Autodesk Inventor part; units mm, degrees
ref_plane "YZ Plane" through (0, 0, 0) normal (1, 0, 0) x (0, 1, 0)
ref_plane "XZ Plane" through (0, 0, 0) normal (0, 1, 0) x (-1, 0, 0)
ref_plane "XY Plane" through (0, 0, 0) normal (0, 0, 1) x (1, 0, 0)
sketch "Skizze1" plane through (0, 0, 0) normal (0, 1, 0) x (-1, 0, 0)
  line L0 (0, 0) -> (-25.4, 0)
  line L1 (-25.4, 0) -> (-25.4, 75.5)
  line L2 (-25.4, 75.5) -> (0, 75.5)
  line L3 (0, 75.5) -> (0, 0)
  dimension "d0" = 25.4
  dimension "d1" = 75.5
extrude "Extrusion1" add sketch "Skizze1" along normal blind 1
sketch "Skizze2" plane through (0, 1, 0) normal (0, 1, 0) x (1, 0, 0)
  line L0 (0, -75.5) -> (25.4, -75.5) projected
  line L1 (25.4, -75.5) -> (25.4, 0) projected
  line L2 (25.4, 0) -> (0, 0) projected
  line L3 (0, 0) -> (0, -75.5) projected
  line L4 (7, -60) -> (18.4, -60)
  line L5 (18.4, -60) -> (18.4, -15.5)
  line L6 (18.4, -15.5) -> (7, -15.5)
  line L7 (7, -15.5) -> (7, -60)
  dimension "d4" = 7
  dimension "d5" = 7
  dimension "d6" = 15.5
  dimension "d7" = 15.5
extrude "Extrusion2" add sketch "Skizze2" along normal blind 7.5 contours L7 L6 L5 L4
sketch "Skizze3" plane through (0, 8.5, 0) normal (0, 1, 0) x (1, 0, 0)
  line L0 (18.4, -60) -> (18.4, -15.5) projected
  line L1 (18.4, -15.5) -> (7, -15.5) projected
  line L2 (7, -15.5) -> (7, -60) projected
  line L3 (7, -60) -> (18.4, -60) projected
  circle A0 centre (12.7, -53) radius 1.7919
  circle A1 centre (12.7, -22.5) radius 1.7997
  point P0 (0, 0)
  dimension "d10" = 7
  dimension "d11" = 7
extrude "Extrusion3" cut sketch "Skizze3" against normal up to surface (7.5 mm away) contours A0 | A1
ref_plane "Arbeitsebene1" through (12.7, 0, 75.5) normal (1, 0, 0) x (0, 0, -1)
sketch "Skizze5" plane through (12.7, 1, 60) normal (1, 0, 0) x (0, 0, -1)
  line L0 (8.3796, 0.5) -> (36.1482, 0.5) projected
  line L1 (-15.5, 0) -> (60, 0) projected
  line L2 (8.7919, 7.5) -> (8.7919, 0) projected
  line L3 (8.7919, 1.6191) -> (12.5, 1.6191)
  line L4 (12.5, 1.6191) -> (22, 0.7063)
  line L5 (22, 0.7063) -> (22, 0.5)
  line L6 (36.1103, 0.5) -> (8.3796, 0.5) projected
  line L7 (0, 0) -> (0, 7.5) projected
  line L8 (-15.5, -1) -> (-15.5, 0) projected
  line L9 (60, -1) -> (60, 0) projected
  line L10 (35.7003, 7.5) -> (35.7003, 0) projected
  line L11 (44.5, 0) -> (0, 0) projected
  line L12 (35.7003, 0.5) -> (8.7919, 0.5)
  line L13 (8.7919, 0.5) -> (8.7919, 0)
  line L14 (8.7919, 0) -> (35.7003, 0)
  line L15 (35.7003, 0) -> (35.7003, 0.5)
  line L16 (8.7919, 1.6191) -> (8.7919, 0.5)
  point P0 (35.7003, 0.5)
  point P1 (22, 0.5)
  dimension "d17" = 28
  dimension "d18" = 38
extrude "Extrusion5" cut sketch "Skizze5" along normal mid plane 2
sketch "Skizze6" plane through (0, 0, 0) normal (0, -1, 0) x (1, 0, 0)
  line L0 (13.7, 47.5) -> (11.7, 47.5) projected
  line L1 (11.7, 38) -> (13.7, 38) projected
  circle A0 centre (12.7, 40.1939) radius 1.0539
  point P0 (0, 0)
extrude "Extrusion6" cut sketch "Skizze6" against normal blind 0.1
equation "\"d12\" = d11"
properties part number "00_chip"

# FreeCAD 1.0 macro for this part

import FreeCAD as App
import Part
import Sketcher
from FreeCAD import Vector


def add_polygon(sketch, points):
    """Adds a closed chain of lines whose ends are joined by coincident constraints."""
    first, n = sketch.GeometryCount, len(points)
    for a, b in zip(points, points[1:] + points[:1]):
        sketch.addGeometry(Part.LineSegment(App.Vector(*a, 0), App.Vector(*b, 0)), False)
    for i in range(n):
        sketch.addConstraint(Sketcher.Constraint("Coincident", first + i, 2, first + (i + 1) % n, 1))

doc = App.newDocument("Part")
body = doc.addObject("PartDesign::Body", "Body")

# Sketch on XZ plane
sketch1 = doc.addObject("Sketcher::SketchObject", "Sketch")
body.addObject(sketch1)
sketch1.AttachmentSupport = (doc.XZ_Plane, [""])
sketch1.MapMode = "FlatFace"
add_polygon(sketch1, [(25, 0), (0, 0), (0, 76), (25, 76)])  # lines 0-3
sketch1.addConstraint(Sketcher.Constraint("Horizontal", 0))
sketch1.addConstraint(Sketcher.Constraint("Vertical", 1))
sketch1.addConstraint(Sketcher.Constraint("Horizontal", 2))
sketch1.addConstraint(Sketcher.Constraint("Vertical", 3))
sketch1.addConstraint(Sketcher.Constraint("Coincident", 0, 2, -1, 1))
sketch1.addConstraint(Sketcher.Constraint("DistanceX", 0, 2, 0, 1, 25.4))
sketch1.addConstraint(Sketcher.Constraint("DistanceY", 1, 1, 1, 2, 75.5))
pad1 = doc.addObject("PartDesign::Pad", "Pad")
body.addObject(pad1)
pad1.Profile = sketch1
pad1.Length = 1
pad1.Reversed = True

# Sketch on XZ plane
sketch2 = doc.addObject("Sketcher::SketchObject", "Sketch001")
body.addObject(sketch2)
sketch2.AttachmentSupport = (doc.XZ_Plane, [""])
sketch2.MapMode = "FlatFace"
sketch2.AttachmentOffset = App.Placement(Vector(0, 0, -1), App.Rotation())
add_polygon(sketch2, [(7, 16), (7, 60), (18, 60), (18, 16)])  # lines 0-3
sketch2.addConstraint(Sketcher.Constraint("Vertical", 0))
sketch2.addConstraint(Sketcher.Constraint("Horizontal", 1))
sketch2.addConstraint(Sketcher.Constraint("Vertical", 2))
sketch2.addConstraint(Sketcher.Constraint("Horizontal", 3))
sketch2.addConstraint(Sketcher.Constraint("DistanceX", -1, 1, 0, 2, 7.0))
sketch2.addConstraint(Sketcher.Constraint("DistanceY", -1, 1, 2, 2, 15.5))
sketch2.addConstraint(Sketcher.Constraint("DistanceX", 1, 1, 1, 2, 11.4))
sketch2.addConstraint(Sketcher.Constraint("DistanceY", 0, 1, 0, 2, 44.5))
pad2 = doc.addObject("PartDesign::Pad", "Pad001")
body.addObject(pad2)
pad2.Profile = sketch2
pad2.Length = 7.5
pad2.Reversed = True

# Sketch on XZ plane
sketch3 = doc.addObject("Sketcher::SketchObject", "Sketch002")
body.addObject(sketch3)
sketch3.AttachmentSupport = (doc.XZ_Plane, [""])
sketch3.MapMode = "FlatFace"
sketch3.AttachmentOffset = App.Placement(Vector(0, 0, -8.5), App.Rotation())
sketch3.addGeometry(Part.Circle(Vector(12.7, 53, 0), Vector(0, 0, 1), 1.8), False)
sketch3.addGeometry(Part.Circle(Vector(12.7, 22.5, 0), Vector(0, 0, 1), 1.8), False)
sketch3.addConstraint(Sketcher.Constraint("Vertical", 0, 3, 1, 3))
sketch3.addConstraint(Sketcher.Constraint("DistanceY", -1, 1, 0, 3, 53.0))
sketch3.addConstraint(Sketcher.Constraint("Diameter", 0, 3.5838))
sketch3.addConstraint(Sketcher.Constraint("Diameter", 1, 3.5994))
sketch3.addConstraint(Sketcher.Constraint("DistanceX", -1, 1, 0, 3, 12.7))
sketch3.addConstraint(Sketcher.Constraint("DistanceY", -1, 1, 1, 3, 22.5))
pocket1 = doc.addObject("PartDesign::Pocket", "Pocket")
body.addObject(pocket1)
pocket1.Profile = sketch3
pocket1.Length = 7.5
pocket1.Reversed = True

# Sketch on YZ plane
sketch4 = doc.addObject("Sketcher::SketchObject", "Sketch003")
body.addObject(sketch4)
sketch4.AttachmentSupport = (doc.YZ_Plane, [""])
sketch4.MapMode = "FlatFace"
sketch4.AttachmentOffset = App.Placement(Vector(0, 0, 12.7), App.Rotation())
add_polygon(sketch4, [(2.62, 51.21), (1, 51.21), (1, 24.3), (1.5, 24.3), (1.5, 38), (1.71, 38), (2.62, 47.5)])  # lines 0-6
sketch4.addConstraint(Sketcher.Constraint("Horizontal", 0))
sketch4.addConstraint(Sketcher.Constraint("Vertical", 1))
sketch4.addConstraint(Sketcher.Constraint("Horizontal", 2))
sketch4.addConstraint(Sketcher.Constraint("Vertical", 3))
sketch4.addConstraint(Sketcher.Constraint("Horizontal", 4))
sketch4.addConstraint(Sketcher.Constraint("Vertical", 6))
sketch4.addConstraint(Sketcher.Constraint("DistanceY", -1, 1, 3, 2, 38.0))
sketch4.addConstraint(Sketcher.Constraint("DistanceX", 2, 1, 2, 2, 0.5))
sketch4.addConstraint(Sketcher.Constraint("DistanceX", -1, 1, 0, 2, 1.0))
sketch4.addConstraint(Sketcher.Constraint("DistanceY", -1, 1, 5, 2, 47.5))
sketch4.addConstraint(Sketcher.Constraint("DistanceX", 0, 2, 0, 1, 1.619))
sketch4.addConstraint(Sketcher.Constraint("DistanceY", 6, 1, 6, 2, 3.708))
sketch4.addConstraint(Sketcher.Constraint("DistanceX", 4, 1, 4, 2, 0.2063))
sketch4.addConstraint(Sketcher.Constraint("DistanceY", 1, 2, 1, 1, 26.9084))
pocket2 = doc.addObject("PartDesign::Pocket", "Pocket001")
body.addObject(pocket2)
pocket2.Profile = sketch4
pocket2.Length = 2
pocket2.Midplane = True

# Sketch on XZ plane
sketch5 = doc.addObject("Sketcher::SketchObject", "Sketch004")
body.addObject(sketch5)
sketch5.AttachmentSupport = (doc.XZ_Plane, [""])
sketch5.MapMode = "FlatFace"
sketch5.addGeometry(Part.Circle(Vector(12.7, 40.2, 0), Vector(0, 0, 1), 1.1), False)
sketch5.addConstraint(Sketcher.Constraint("Diameter", 0, 2.1078))
sketch5.addConstraint(Sketcher.Constraint("DistanceX", -1, 1, 0, 3, 12.7))
sketch5.addConstraint(Sketcher.Constraint("DistanceY", -1, 1, 0, 3, 40.194))
pocket3 = doc.addObject("PartDesign::Pocket", "Pocket002")
body.addObject(pocket3)
pocket3.Profile = sketch5
pocket3.Length = 0.1

doc.recompute()
